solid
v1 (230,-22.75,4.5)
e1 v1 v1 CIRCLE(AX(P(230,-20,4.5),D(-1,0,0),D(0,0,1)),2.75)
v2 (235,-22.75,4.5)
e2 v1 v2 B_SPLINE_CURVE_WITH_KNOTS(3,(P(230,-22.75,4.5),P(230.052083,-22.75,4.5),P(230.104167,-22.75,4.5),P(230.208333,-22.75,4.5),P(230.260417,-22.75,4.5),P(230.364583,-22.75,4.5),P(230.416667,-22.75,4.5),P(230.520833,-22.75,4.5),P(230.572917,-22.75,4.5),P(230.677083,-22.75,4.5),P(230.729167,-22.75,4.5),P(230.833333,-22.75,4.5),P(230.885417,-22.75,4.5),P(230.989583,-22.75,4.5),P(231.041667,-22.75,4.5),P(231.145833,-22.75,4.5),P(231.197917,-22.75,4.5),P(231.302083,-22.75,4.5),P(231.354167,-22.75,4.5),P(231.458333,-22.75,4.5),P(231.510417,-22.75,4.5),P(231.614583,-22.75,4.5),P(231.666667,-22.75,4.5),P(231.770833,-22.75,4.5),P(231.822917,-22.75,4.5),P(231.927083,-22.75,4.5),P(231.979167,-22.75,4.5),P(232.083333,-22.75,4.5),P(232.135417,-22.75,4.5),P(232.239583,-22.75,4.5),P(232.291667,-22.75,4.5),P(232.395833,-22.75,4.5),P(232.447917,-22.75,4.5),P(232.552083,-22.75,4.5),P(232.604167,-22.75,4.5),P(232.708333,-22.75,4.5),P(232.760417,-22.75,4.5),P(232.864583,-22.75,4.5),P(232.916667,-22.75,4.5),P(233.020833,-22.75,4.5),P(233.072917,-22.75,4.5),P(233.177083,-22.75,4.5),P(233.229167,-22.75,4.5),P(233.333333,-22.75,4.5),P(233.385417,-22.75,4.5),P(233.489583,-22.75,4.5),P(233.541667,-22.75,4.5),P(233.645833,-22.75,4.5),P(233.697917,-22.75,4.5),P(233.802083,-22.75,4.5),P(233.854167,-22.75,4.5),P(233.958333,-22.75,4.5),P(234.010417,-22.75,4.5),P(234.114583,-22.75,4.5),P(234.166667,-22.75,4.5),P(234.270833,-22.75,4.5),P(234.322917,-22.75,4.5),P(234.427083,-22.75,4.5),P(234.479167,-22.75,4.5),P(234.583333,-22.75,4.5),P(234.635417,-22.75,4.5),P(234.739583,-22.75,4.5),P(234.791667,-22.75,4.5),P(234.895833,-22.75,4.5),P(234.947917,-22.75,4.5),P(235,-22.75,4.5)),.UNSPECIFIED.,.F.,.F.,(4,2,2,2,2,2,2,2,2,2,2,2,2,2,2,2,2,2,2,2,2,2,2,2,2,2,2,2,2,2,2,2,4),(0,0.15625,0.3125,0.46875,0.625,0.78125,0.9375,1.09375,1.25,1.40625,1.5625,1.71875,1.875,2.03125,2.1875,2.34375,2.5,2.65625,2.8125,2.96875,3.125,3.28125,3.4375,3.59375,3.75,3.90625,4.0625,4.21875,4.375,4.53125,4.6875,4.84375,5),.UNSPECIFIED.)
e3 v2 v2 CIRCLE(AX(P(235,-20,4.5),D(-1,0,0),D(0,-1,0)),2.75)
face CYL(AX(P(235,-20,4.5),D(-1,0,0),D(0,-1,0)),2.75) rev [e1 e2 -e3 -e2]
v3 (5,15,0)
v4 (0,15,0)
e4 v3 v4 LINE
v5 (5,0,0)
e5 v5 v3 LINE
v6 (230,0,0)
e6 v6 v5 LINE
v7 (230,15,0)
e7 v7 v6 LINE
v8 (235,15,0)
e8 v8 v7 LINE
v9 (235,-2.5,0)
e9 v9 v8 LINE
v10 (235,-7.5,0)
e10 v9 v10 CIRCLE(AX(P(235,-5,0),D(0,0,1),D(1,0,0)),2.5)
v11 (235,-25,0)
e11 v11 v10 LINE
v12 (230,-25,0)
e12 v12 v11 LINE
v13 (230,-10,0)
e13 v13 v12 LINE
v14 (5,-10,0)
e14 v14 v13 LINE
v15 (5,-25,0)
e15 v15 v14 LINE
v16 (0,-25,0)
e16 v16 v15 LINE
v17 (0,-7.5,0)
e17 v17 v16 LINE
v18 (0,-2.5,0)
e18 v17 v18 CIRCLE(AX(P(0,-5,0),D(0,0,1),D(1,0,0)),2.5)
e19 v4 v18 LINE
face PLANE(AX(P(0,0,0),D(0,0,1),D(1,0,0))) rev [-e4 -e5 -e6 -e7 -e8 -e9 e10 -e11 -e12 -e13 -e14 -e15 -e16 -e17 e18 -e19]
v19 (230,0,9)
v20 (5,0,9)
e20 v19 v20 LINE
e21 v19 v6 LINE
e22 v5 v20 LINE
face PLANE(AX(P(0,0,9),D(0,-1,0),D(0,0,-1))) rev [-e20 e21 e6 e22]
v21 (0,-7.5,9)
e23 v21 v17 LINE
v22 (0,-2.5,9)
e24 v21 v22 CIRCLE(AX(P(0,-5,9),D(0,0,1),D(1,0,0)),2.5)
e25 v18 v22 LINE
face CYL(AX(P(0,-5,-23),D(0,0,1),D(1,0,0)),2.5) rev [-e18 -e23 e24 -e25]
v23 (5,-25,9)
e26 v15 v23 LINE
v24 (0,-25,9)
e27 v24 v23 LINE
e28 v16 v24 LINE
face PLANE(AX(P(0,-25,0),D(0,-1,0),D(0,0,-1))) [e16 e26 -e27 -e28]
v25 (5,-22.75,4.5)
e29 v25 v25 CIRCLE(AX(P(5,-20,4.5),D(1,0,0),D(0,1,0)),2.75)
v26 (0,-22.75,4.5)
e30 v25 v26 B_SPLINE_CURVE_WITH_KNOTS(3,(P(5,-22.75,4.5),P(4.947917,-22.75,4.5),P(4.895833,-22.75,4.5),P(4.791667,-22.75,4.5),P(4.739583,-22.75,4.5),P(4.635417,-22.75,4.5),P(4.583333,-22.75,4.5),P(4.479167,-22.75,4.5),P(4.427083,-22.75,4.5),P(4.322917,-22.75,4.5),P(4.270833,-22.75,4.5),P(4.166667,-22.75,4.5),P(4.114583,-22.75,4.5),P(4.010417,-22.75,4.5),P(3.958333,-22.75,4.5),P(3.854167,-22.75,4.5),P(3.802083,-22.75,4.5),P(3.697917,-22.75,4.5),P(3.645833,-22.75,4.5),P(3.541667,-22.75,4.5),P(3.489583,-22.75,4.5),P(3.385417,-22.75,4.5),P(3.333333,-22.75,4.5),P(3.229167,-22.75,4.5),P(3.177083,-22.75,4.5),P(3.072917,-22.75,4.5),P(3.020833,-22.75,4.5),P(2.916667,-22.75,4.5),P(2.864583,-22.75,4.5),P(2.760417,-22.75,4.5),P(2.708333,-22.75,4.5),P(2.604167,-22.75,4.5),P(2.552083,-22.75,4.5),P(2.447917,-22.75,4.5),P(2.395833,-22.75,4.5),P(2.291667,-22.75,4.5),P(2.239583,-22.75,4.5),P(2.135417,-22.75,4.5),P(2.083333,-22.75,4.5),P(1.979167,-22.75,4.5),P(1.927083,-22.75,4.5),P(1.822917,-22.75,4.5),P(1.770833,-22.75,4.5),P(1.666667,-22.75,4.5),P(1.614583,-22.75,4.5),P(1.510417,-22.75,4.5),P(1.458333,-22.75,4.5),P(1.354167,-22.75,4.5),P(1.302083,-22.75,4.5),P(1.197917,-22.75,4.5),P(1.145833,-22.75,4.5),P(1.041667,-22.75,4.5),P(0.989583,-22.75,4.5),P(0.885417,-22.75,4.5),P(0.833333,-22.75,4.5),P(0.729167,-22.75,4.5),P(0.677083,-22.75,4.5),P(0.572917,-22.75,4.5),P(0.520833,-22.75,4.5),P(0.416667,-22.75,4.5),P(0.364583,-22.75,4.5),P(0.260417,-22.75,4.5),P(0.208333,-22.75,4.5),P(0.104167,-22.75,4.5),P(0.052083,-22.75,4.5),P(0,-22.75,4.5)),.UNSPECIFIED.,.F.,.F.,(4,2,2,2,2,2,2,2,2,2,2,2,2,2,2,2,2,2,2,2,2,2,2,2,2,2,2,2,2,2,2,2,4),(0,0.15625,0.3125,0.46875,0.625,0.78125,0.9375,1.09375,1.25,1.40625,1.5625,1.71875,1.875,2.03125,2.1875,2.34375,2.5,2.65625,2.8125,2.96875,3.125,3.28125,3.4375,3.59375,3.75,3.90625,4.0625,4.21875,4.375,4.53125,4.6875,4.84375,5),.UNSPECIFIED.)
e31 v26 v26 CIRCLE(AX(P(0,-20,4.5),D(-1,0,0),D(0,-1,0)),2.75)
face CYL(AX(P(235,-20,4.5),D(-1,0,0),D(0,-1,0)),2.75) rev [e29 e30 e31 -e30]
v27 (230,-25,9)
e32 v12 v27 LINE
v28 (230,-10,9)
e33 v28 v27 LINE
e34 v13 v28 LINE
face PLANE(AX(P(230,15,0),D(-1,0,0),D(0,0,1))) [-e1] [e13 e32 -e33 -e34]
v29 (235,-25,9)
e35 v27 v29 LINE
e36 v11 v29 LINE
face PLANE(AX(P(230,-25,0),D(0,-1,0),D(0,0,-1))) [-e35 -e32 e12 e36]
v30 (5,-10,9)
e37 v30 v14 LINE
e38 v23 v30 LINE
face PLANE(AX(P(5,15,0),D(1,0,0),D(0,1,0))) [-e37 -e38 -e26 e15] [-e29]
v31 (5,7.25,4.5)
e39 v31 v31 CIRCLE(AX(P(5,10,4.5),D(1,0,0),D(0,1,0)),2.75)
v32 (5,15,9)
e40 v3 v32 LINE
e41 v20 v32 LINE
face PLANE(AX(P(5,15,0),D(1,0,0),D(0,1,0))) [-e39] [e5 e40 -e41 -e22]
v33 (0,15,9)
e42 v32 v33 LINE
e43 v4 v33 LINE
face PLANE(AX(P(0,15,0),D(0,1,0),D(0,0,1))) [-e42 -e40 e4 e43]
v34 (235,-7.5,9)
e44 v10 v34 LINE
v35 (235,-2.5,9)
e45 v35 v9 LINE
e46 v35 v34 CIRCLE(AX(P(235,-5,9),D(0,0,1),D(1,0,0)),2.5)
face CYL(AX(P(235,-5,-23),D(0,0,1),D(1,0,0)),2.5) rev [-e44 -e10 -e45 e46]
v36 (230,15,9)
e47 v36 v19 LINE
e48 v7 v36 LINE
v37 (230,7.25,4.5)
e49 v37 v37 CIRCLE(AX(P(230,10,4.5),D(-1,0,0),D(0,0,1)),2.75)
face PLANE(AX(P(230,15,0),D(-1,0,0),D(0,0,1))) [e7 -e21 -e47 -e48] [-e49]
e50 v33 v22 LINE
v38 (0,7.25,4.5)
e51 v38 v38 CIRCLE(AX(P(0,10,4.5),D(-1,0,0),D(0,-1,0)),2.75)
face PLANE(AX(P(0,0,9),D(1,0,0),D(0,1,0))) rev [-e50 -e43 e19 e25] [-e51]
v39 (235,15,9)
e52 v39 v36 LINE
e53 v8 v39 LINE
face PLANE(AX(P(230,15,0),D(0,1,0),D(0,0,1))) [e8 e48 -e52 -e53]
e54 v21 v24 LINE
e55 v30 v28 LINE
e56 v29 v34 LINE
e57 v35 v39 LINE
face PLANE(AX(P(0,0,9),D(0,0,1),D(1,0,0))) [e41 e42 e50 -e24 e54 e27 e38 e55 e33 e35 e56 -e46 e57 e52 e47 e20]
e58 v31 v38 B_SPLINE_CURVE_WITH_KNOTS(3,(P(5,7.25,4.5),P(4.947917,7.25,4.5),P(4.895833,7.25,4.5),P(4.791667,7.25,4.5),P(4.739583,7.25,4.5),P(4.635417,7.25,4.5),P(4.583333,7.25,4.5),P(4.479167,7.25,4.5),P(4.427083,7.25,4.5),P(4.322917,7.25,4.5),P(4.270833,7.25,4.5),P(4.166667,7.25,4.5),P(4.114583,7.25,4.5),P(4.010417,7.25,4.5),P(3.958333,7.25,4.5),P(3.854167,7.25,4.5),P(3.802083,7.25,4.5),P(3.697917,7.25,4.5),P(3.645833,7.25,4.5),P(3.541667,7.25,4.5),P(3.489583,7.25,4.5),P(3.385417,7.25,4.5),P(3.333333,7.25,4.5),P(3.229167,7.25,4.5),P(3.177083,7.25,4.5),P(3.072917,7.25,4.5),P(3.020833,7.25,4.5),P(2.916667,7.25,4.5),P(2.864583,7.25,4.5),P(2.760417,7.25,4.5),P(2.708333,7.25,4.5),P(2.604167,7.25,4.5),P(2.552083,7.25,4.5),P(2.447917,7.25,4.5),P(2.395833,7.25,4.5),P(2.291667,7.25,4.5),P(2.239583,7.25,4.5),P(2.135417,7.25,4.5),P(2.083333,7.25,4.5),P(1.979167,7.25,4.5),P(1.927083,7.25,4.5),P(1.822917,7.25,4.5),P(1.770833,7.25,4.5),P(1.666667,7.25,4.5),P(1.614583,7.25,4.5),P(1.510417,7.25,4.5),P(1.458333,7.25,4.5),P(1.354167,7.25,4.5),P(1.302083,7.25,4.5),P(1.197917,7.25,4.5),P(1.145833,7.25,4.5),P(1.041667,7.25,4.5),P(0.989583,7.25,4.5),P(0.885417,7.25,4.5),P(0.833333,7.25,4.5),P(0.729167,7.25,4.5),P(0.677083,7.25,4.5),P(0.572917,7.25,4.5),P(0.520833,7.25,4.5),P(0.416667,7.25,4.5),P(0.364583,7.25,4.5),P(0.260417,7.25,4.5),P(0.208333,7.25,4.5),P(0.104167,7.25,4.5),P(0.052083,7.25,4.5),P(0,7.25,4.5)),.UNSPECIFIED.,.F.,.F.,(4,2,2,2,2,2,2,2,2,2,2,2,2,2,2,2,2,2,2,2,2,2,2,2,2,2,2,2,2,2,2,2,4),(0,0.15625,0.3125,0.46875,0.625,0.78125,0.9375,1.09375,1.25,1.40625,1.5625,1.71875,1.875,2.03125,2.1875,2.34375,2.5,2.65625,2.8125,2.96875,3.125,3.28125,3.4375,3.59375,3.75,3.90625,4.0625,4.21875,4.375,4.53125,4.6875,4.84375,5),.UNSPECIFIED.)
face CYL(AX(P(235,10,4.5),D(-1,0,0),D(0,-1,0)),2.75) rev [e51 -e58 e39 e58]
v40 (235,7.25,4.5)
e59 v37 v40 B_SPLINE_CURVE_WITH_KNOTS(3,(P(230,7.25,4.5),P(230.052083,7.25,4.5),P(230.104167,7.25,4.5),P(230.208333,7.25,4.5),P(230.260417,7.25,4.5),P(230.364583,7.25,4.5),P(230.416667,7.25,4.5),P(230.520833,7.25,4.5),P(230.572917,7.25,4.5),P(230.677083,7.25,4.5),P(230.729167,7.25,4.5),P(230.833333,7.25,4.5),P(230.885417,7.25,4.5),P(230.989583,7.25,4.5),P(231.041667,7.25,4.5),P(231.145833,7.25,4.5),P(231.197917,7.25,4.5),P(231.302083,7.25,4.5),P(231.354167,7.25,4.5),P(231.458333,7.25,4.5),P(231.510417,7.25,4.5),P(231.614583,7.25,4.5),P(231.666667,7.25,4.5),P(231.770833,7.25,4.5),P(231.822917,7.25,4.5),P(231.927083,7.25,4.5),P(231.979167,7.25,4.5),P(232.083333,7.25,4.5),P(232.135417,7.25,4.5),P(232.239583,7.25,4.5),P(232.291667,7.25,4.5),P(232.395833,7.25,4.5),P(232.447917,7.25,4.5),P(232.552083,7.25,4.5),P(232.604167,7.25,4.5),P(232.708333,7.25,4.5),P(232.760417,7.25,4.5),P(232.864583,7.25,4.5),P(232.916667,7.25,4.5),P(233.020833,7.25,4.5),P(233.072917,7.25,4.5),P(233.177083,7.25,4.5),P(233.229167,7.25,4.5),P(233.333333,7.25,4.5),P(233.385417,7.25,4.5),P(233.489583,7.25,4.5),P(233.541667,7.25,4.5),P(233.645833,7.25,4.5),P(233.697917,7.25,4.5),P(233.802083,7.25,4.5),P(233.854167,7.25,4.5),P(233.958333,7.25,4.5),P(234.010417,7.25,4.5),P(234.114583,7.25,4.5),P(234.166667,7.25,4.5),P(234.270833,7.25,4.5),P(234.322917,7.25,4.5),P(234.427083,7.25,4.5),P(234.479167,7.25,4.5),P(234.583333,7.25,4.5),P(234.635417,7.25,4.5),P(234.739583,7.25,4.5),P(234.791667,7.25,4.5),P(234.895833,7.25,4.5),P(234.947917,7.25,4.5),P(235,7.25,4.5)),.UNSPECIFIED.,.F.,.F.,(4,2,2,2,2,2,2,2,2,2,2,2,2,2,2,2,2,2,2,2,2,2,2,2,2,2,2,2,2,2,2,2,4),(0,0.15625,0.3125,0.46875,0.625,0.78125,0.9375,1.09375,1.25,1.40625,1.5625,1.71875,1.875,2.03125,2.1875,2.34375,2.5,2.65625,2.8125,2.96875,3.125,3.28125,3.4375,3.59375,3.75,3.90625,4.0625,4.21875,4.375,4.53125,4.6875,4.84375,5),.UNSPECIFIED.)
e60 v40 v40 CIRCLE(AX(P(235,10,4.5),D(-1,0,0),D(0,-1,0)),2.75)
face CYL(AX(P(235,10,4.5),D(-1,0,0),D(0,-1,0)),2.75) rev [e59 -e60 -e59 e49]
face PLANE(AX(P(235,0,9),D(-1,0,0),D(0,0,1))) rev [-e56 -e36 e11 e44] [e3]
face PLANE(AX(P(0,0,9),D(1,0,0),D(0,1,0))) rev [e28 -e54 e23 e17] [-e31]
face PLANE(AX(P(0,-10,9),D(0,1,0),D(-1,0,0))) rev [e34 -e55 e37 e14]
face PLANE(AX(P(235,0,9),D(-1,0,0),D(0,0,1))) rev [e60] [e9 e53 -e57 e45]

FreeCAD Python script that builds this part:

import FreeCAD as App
import Part
import Sketcher


def add_polygon(sketch, points):
    """Adds a closed chain of lines whose ends are joined by coincident constraints."""
    first, n = sketch.GeometryCount, len(points)
    for a, b in zip(points, points[1:] + points[:1]):
        sketch.addGeometry(Part.LineSegment(App.Vector(*a, 0), App.Vector(*b, 0)), False)
    for i in range(n):
        sketch.addConstraint(Sketcher.Constraint("Coincident", first + i, 2, first + (i + 1) % n, 1))

doc = App.newDocument("Part")
body = doc.addObject("PartDesign::Body", "Body")

# Sketch on XY plane
sketch1 = body.newObject("Sketcher::SketchObject", "Sketch")
sketch1.AttachmentSupport = (doc.getObject("XY_Plane"), [""])
sketch1.MapMode = "FlatFace"
add_polygon(sketch1, [(0, 0), (0, -10), (235, -10), (235, 0)])  # lines 0-3
sketch1.addConstraint([
    Sketcher.Constraint("Vertical", 0),
    Sketcher.Constraint("Horizontal", 1),
    Sketcher.Constraint("Vertical", 2),
    Sketcher.Constraint("Horizontal", 3),
    Sketcher.Constraint("Coincident", 3, 2, -1, 1),
    Sketcher.Constraint("DistanceX", 1, 1, 1, 2, 235.0),
    Sketcher.Constraint("DistanceY", 0, 2, 0, 1, 10.0),
])
pad1 = body.newObject("PartDesign::Pad", "Pad")
pad1.Profile = sketch1
pad1.Length = 9

# Sketch on XY plane
sketch2 = body.newObject("Sketcher::SketchObject", "Sketch001")
sketch2.AttachmentSupport = (doc.getObject("XY_Plane"), [""])
sketch2.MapMode = "FlatFace"
sketch2.AttachmentOffset = App.Placement(App.Vector(0, 0, 9), App.Rotation())
add_polygon(sketch2, [(230, 15), (230, -25), (235, -25), (235, 15)])  # lines 0-3
add_polygon(sketch2, [(0, 15), (0, -25), (5, -25), (5, 15)])  # lines 4-7
sketch2.addConstraint([
    Sketcher.Constraint("Vertical", 0),
    Sketcher.Constraint("Horizontal", 1),
    Sketcher.Constraint("Vertical", 2),
    Sketcher.Constraint("Horizontal", 3),
    Sketcher.Constraint("Vertical", 4),
    Sketcher.Constraint("Horizontal", 5),
    Sketcher.Constraint("Vertical", 6),
    Sketcher.Constraint("Horizontal", 7),
    Sketcher.Constraint("PointOnObject", 4, 2, -2),
    Sketcher.Constraint("Horizontal", 1, 2, 4, 2),
    Sketcher.Constraint("Horizontal", 3, 2, 6, 2),
    Sketcher.Constraint("Equal", 3, 5),
    Sketcher.Constraint("DistanceX", 1, 1, 1, 2, 5.0),
    Sketcher.Constraint("DistanceY", 0, 2, 0, 1, 40.0),
    Sketcher.Constraint("DistanceX", -1, 1, 0, 2, 230.0),
    Sketcher.Constraint("DistanceY", 0, 2, -1, 1, 25.0),
])
pad2 = body.newObject("PartDesign::Pad", "Pad001")
pad2.Profile = sketch2
pad2.Length = 9
pad2.Reversed = True

# Sketch on XY plane
sketch3 = body.newObject("Sketcher::SketchObject", "Sketch002")
sketch3.AttachmentSupport = (doc.getObject("XY_Plane"), [""])
sketch3.MapMode = "FlatFace"
sketch3.AttachmentOffset = App.Placement(App.Vector(0, 0, 9), App.Rotation())
sketch3.addGeometry([
    Part.Circle(App.Vector(235, -5, 0), App.Vector(0, 0, 1), 2.5),
    Part.Circle(App.Vector(0, -5, 0), App.Vector(0, 0, 1), 2.5),
], False)
sketch3.addConstraint([
    Sketcher.Constraint("Equal", 0, 1),
    Sketcher.Constraint("PointOnObject", 1, 3, -2),
    Sketcher.Constraint("Horizontal", 0, 3, 1, 3),
    Sketcher.Constraint("Diameter", 0, 5.0),
    Sketcher.Constraint("DistanceX", -1, 1, 0, 3, 235.0),
    Sketcher.Constraint("DistanceY", 0, 3, -1, 1, 5.0),
])
pocket1 = body.newObject("PartDesign::Pocket", "Pocket")
pocket1.Profile = sketch3
pocket1.Length = 32

# Sketch on YZ plane
sketch4 = body.newObject("Sketcher::SketchObject", "Sketch003")
sketch4.AttachmentSupport = (doc.getObject("YZ_Plane"), [""])
sketch4.MapMode = "FlatFace"
sketch4.addGeometry([
    Part.Circle(App.Vector(10, 4.5, 0), App.Vector(0, 0, 1), 2.8),
    Part.Circle(App.Vector(-20, 4.5, 0), App.Vector(0, 0, 1), 2.8),
], False)
sketch4.addConstraint([
    Sketcher.Constraint("Equal", 0, 1),
    Sketcher.Constraint("Horizontal", 0, 3, 1, 3),
    Sketcher.Constraint("Diameter", 0, 5.5),
    Sketcher.Constraint("DistanceX", -1, 1, 0, 3, 10.0),
    Sketcher.Constraint("DistanceX", 1, 3, -1, 1, 20.0),
    Sketcher.Constraint("DistanceY", -1, 1, 0, 3, 4.5),
])
pocket2 = body.newObject("PartDesign::Pocket", "Pocket001")
pocket2.Profile = sketch4
pocket2.Type = "ThroughAll"
pocket2.Reversed = True

doc.recompute()
